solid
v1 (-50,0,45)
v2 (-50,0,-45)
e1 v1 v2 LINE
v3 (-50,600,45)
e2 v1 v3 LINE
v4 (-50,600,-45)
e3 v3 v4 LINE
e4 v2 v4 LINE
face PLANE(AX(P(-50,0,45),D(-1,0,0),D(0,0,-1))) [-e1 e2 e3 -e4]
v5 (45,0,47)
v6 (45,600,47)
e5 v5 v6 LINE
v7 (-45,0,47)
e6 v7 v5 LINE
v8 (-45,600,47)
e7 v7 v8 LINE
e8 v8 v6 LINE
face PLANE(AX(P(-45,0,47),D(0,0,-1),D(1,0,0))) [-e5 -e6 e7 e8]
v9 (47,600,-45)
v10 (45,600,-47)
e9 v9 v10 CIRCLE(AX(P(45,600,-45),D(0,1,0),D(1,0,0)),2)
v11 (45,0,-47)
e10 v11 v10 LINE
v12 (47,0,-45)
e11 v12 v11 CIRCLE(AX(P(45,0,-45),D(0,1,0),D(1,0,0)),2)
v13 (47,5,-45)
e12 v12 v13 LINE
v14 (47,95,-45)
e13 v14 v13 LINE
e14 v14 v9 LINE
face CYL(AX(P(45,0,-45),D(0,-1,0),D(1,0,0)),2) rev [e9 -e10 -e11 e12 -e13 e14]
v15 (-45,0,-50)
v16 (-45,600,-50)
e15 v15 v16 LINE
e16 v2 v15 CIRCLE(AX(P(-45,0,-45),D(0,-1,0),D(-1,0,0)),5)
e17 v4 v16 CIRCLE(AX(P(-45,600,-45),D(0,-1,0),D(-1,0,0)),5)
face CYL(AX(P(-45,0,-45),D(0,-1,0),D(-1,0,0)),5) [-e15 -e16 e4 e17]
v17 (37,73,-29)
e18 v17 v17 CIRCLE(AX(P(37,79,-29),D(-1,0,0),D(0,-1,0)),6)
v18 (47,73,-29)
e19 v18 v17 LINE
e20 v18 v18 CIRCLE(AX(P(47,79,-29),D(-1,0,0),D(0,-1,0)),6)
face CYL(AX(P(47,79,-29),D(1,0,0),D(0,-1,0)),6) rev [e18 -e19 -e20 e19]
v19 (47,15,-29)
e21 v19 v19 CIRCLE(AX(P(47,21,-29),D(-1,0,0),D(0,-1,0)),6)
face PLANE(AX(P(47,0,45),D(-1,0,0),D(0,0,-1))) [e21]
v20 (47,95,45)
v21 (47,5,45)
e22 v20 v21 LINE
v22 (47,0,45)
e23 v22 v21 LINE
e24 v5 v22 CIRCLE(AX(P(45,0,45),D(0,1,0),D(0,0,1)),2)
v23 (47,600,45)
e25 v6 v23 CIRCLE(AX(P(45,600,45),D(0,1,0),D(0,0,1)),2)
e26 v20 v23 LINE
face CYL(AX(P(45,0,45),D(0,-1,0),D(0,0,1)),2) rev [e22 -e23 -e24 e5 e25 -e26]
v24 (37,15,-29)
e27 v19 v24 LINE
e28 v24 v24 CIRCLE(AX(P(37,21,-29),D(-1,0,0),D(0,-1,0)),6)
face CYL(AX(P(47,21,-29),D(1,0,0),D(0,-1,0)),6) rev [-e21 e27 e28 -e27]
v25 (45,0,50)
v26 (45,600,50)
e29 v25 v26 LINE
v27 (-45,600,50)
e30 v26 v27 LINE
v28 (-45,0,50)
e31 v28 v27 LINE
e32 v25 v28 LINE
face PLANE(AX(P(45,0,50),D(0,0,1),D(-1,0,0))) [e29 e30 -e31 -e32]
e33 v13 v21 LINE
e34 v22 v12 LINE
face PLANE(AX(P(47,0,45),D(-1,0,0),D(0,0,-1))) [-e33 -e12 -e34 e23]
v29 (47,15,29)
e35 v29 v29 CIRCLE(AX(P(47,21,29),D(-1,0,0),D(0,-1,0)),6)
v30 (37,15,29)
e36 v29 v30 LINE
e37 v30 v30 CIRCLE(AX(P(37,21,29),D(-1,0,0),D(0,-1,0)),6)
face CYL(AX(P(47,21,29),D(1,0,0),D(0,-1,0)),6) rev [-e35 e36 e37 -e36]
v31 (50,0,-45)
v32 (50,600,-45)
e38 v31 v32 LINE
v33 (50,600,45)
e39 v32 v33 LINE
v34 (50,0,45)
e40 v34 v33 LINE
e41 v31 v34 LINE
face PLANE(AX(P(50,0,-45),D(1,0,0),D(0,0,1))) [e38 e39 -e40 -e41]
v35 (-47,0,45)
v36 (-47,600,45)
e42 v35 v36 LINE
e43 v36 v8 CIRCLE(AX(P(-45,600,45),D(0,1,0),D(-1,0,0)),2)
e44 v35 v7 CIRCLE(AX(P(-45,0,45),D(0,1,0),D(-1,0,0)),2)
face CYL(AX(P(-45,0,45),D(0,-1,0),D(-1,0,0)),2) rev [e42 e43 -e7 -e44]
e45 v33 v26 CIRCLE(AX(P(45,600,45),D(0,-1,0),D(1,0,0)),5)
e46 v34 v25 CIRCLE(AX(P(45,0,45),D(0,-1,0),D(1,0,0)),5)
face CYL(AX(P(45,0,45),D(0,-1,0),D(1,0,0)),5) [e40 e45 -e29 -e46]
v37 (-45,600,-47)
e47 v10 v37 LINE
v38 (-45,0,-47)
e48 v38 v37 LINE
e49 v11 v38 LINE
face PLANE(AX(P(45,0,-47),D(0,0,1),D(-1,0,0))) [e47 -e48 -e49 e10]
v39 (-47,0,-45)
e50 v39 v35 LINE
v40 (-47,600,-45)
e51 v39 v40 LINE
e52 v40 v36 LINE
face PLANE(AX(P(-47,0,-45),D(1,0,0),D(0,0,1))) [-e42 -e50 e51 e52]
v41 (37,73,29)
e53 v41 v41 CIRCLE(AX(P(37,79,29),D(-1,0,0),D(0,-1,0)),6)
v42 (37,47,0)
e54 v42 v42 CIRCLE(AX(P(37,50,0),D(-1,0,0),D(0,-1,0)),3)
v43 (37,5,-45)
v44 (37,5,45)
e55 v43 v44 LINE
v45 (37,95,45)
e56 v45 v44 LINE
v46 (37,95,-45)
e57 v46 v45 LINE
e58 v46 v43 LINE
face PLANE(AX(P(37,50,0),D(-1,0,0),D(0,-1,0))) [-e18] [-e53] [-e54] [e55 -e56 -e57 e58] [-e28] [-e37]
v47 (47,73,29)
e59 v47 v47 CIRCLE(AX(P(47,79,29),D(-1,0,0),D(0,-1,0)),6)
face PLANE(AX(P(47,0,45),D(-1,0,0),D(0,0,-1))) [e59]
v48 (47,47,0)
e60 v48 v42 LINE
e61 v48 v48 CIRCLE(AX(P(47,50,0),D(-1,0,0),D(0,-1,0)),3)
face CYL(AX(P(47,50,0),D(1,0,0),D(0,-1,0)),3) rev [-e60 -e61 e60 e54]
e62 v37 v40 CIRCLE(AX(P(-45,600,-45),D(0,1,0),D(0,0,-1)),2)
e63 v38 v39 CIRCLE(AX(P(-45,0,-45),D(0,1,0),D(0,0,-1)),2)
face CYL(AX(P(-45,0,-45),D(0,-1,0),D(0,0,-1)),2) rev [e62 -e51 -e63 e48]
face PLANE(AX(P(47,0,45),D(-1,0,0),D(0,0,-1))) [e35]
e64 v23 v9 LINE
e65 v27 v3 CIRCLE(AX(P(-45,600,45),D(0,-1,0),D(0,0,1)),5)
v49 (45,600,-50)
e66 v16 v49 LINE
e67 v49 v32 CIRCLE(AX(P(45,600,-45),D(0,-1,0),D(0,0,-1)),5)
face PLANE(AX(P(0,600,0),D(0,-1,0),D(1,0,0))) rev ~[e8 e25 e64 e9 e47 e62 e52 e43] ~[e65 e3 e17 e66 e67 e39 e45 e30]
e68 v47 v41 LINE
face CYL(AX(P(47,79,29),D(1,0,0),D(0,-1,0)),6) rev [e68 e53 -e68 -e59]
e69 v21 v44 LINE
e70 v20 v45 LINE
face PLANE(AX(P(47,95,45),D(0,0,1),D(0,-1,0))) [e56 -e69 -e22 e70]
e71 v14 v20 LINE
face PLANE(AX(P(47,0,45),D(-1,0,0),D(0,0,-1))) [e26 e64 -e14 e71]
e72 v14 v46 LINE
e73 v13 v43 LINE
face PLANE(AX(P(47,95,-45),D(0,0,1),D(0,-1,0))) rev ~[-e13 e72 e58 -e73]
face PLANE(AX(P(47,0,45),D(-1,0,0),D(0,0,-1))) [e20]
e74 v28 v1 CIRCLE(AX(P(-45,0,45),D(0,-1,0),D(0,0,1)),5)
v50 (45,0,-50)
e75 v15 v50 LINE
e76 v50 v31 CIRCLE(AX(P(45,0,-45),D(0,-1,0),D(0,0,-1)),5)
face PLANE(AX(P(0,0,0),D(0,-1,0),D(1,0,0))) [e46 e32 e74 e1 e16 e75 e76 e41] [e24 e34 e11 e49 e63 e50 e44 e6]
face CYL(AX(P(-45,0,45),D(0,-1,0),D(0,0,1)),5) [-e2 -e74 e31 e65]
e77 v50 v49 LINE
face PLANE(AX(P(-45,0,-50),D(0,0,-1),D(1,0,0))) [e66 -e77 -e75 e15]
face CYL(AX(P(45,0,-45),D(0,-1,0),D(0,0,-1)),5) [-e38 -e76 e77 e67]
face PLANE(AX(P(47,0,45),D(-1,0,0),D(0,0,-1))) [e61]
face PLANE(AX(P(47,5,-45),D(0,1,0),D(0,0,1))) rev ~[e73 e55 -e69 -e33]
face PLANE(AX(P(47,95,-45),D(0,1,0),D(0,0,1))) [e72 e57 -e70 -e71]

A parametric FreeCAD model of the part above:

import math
import FreeCAD as App
import Part
import Sketcher


def add_polygon(sketch, points):
    """Adds a closed chain of lines whose ends are joined by coincident constraints."""
    first, n = sketch.GeometryCount, len(points)
    for a, b in zip(points, points[1:] + points[:1]):
        sketch.addGeometry(Part.LineSegment(App.Vector(*a, 0), App.Vector(*b, 0)), False)
    for i in range(n):
        sketch.addConstraint(Sketcher.Constraint("Coincident", first + i, 2, first + (i + 1) % n, 1))

doc = App.newDocument("Part")
body = doc.addObject("PartDesign::Body", "Body")

# Sketch on XZ plane
sketch1 = body.newObject("Sketcher::SketchObject", "Sketch")
sketch1.AttachmentSupport = (doc.getObject("XZ_Plane"), [""])
sketch1.MapMode = "FlatFace"
sketch1.addGeometry([
    Part.ArcOfCircle(Part.Circle(App.Vector(45, 45, 0), App.Vector(0, 0, 1), 5), math.radians(0), math.radians(90)),  # 0
    Part.LineSegment(App.Vector(45, 50, 0), App.Vector(-45, 50, 0)),  # 1
    Part.ArcOfCircle(Part.Circle(App.Vector(-45, 45, 0), App.Vector(0, 0, 1), 5), math.radians(90), math.radians(180)),  # 2
    Part.LineSegment(App.Vector(-50, 45, 0), App.Vector(-50, -45, 0)),  # 3
    Part.ArcOfCircle(Part.Circle(App.Vector(-45, -45, 0), App.Vector(0, 0, 1), 5), math.radians(180), math.radians(270)),  # 4
    Part.LineSegment(App.Vector(-45, -50, 0), App.Vector(45, -50, 0)),  # 5
    Part.ArcOfCircle(Part.Circle(App.Vector(45, -45, 0), App.Vector(0, 0, 1), 5), math.radians(-90), math.radians(0)),  # 6
    Part.LineSegment(App.Vector(50, -45, 0), App.Vector(50, 45, 0)),  # 7
    Part.LineSegment(App.Vector(-47, -45, 0), App.Vector(-47, 45, 0)),  # 8
    Part.ArcOfCircle(Part.Circle(App.Vector(-45, 45, 0), App.Vector(0, 0, 1), 2), math.radians(90), math.radians(180)),  # 9
    Part.LineSegment(App.Vector(-45, 47, 0), App.Vector(45, 47, 0)),  # 10
    Part.ArcOfCircle(Part.Circle(App.Vector(45, 45, 0), App.Vector(0, 0, 1), 2), math.radians(0), math.radians(90)),  # 11
    Part.LineSegment(App.Vector(47, 45, 0), App.Vector(47, -45, 0)),  # 12
    Part.ArcOfCircle(Part.Circle(App.Vector(45, -45, 0), App.Vector(0, 0, 1), 2), math.radians(-90), math.radians(0)),  # 13
    Part.LineSegment(App.Vector(45, -47, 0), App.Vector(-45, -47, 0)),  # 14
    Part.ArcOfCircle(Part.Circle(App.Vector(-45, -45, 0), App.Vector(0, 0, 1), 2), math.radians(180), math.radians(270)),  # 15
], False)
sketch1.addConstraint([
    Sketcher.Constraint("Tangent", 0, 2, 1, 1),
    Sketcher.Constraint("Tangent", 1, 2, 2, 1),
    Sketcher.Constraint("Tangent", 2, 2, 3, 1),
    Sketcher.Constraint("Tangent", 3, 2, 4, 1),
    Sketcher.Constraint("Tangent", 4, 2, 5, 1),
    Sketcher.Constraint("Tangent", 5, 2, 6, 1),
    Sketcher.Constraint("Tangent", 6, 2, 7, 1),
    Sketcher.Constraint("Tangent", 7, 2, 0, 1),
    Sketcher.Constraint("Tangent", 8, 2, 9, 2),
    Sketcher.Constraint("Tangent", 9, 1, 10, 1),
    Sketcher.Constraint("Tangent", 10, 2, 11, 2),
    Sketcher.Constraint("Tangent", 11, 1, 12, 1),
    Sketcher.Constraint("Tangent", 12, 2, 13, 2),
    Sketcher.Constraint("Tangent", 13, 1, 14, 1),
    Sketcher.Constraint("Tangent", 14, 2, 15, 2),
    Sketcher.Constraint("Tangent", 15, 1, 8, 1),
    Sketcher.Constraint("Horizontal", 1),
    Sketcher.Constraint("Vertical", 3),
    Sketcher.Constraint("Horizontal", 5),
    Sketcher.Constraint("Vertical", 7),
    Sketcher.Constraint("Vertical", 8),
    Sketcher.Constraint("Horizontal", 10),
    Sketcher.Constraint("Vertical", 12),
    Sketcher.Constraint("Horizontal", 14),
    Sketcher.Constraint("Coincident", 9, 3, 2, 3),
    Sketcher.Constraint("Coincident", 11, 3, 0, 3),
    Sketcher.Constraint("Coincident", 13, 3, 6, 3),
    Sketcher.Constraint("Equal", 0, 2),
    Sketcher.Constraint("Equal", 2, 4),
    Sketcher.Constraint("Equal", 4, 6),
    Sketcher.Constraint("Equal", 13, 15),
    Sketcher.Constraint("Symmetric", 0, 3, 4, 3, -1, 1),
    Sketcher.Constraint("Equal", 14, 3),
    Sketcher.Constraint("Radius", 0, 5.0),
    Sketcher.Constraint("Radius", 9, 2.0),
    Sketcher.Constraint("DistanceX", 1, 2, 1, 1, 90.0),
])
pad1 = body.newObject("PartDesign::Pad", "Pad")
pad1.Profile = sketch1
pad1.Length = 600
pad1.Reversed = True

# Sketch on YZ plane
sketch2 = body.newObject("Sketcher::SketchObject", "Sketch001")
sketch2.AttachmentSupport = (doc.getObject("YZ_Plane"), [""])
sketch2.MapMode = "FlatFace"
sketch2.AttachmentOffset = App.Placement(App.Vector(0, 0, 47), App.Rotation())
add_polygon(sketch2, [(95, 45), (95, -45), (5, -45), (5, 45)])  # lines 0-3
sketch2.addGeometry(Part.Circle(App.Vector(79, -29, 0), App.Vector(0, 0, 1), 6), False)  # 4
sketch2.addGeometry(Part.Circle(App.Vector(21, -29, 0), App.Vector(0, 0, 1), 6), False)  # 5
sketch2.addGeometry(Part.Circle(App.Vector(79, 29, 0), App.Vector(0, 0, 1), 6), False)  # 6
sketch2.addGeometry(Part.Circle(App.Vector(50, 0, 0), App.Vector(0, 0, 1), 3), False)  # 7
sketch2.addGeometry(Part.Circle(App.Vector(21, 29, 0), App.Vector(0, 0, 1), 6), False)  # 8
sketch2.addConstraint([
    Sketcher.Constraint("Vertical", 0),
    Sketcher.Constraint("Horizontal", 1),
    Sketcher.Constraint("Vertical", 2),
    Sketcher.Constraint("Horizontal", 3),
    Sketcher.Constraint("Equal", 4, 5),
    Sketcher.Constraint("Equal", 5, 6),
    Sketcher.Constraint("Equal", 6, 8),
    Sketcher.Constraint("Symmetric", 4, 3, 6, 3, -1),
    Sketcher.Constraint("Symmetric", 5, 3, 8, 3, -1),
    Sketcher.Constraint("PointOnObject", 7, 3, -1),
    Sketcher.Constraint("Horizontal", 4, 3, 5, 3),
    Sketcher.Constraint("Equal", 3, 0),
    Sketcher.Constraint("Diameter", 4, 12.0),
    Sketcher.Constraint("Diameter", 7, 6.0),
    Sketcher.Constraint("DistanceX", 1, 2, 1, 1, 90.0),
    Sketcher.Constraint("DistanceX", -1, 1, 4, 3, 79.0),
    Sketcher.Constraint("DistanceY", 4, 3, -1, 1, 29.0),
    Sketcher.Constraint("DistanceX", -1, 1, 5, 3, 21.0),
    Sketcher.Constraint("DistanceX", -1, 1, 7, 3, 50.0),
    Sketcher.Constraint("DistanceX", -1, 1, 0, 2, 95.0),
    Sketcher.Constraint("DistanceY", 0, 2, -1, 1, 45.0),
])
pad2 = body.newObject("PartDesign::Pad", "Pad001")
pad2.Profile = sketch2
pad2.Length = 10
pad2.Reversed = True

doc.recompute()
